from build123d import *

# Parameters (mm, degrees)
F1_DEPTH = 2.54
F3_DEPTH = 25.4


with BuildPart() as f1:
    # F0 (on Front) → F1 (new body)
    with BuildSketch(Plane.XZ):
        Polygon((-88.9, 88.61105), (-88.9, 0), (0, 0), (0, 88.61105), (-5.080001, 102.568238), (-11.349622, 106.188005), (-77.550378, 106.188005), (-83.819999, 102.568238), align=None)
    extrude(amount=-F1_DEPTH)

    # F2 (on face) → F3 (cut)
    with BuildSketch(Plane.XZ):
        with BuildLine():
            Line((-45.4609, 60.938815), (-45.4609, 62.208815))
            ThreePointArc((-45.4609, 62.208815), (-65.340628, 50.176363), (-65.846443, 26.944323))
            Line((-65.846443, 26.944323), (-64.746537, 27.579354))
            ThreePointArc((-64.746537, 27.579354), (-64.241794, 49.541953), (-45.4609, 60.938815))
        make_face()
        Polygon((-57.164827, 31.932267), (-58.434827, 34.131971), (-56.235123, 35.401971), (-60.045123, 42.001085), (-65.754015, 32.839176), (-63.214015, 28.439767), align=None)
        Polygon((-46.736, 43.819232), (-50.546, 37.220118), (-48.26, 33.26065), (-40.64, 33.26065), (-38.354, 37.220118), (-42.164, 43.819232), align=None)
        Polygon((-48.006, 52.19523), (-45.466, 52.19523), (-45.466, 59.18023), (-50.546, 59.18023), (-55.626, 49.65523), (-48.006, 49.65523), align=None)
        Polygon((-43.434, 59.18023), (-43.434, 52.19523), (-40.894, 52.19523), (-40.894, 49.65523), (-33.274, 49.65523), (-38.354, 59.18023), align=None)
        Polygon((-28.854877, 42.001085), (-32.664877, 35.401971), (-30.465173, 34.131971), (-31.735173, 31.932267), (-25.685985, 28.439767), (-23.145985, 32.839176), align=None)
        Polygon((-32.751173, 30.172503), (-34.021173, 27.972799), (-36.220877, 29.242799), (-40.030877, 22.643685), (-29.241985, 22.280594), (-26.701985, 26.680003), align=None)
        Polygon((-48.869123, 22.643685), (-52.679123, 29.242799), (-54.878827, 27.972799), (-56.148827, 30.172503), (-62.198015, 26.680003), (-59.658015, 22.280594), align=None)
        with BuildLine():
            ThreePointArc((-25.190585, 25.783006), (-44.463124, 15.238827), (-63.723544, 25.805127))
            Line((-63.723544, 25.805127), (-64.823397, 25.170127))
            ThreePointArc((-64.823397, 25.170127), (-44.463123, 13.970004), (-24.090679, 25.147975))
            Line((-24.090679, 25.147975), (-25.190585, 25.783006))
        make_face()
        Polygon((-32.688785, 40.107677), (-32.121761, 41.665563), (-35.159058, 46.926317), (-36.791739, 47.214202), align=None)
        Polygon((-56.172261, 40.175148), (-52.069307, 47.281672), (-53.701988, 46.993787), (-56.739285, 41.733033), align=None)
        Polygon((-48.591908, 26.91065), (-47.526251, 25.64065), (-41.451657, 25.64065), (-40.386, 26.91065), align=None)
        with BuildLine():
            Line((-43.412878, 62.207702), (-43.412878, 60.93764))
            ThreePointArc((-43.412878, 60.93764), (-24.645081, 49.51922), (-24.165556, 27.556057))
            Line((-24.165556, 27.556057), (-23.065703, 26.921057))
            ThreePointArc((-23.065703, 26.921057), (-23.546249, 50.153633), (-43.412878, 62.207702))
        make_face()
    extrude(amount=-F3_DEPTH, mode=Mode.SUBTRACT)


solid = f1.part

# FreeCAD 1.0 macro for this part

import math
import FreeCAD as App
import Part
import Sketcher

V = App.Vector
Q = App.Units.Quantity


def add_polygon(sketch, points):
    """Adds a closed chain of lines whose ends are joined by coincident constraints."""
    first, n = sketch.GeometryCount, len(points)
    for a, b in zip(points, points[1:] + points[:1]):
        sketch.addGeometry(Part.LineSegment(App.Vector(*a, 0), App.Vector(*b, 0)), False)
    for i in range(n):
        sketch.addConstraint(Sketcher.Constraint("Coincident", first + i, 2, first + (i + 1) % n, 1))

doc = App.newDocument("Part")
body = doc.addObject("PartDesign::Body", "Body")

# Sketch on XZ plane
sketch1 = doc.addObject("Sketcher::SketchObject", "Sketch")
body.addObject(sketch1)
sketch1.AttachmentSupport = (doc.XZ_Plane, [""])
sketch1.MapMode = "FlatFace"
add_polygon(sketch1, [(-88.9, 88.61105), (-88.9, 0), (0, 0), (0, 88.61105), (-5.080001, 102.568238), (-11.349622, 106.188005), (-77.550378, 106.188005), (-83.819999, 102.568238)])  # lines 0-7
sketch1.addConstraint([
    Sketcher.Constraint("Vertical", 0),
    Sketcher.Constraint("Horizontal", 1),
    Sketcher.Constraint("Vertical", 2),
    Sketcher.Constraint("Horizontal", 5),
    Sketcher.Constraint("Coincident", 1, 2, -1, 1),
    Sketcher.Constraint("Horizontal", 3, 2, 6, 2),
    Sketcher.Constraint("Horizontal", 2, 2, 7, 2),
    Sketcher.Constraint("Equal", 4, 6),
    Sketcher.Constraint("Equal", 3, 7),
    Sketcher.Constraint("DistanceX", 1, 1, 1, 2, Q("3.5 in")),
    Sketcher.Constraint("Angle", 3, Q("110 deg")),
    Sketcher.Constraint("Angle", 4, Q("150.000003 deg")),
    Sketcher.Constraint("DistanceX", 3, 2, -1, 1, Q("0.2 in")),
    Sketcher.Constraint("DistanceY", 0, 2, 0, 1, 88.61105),
    Sketcher.Constraint("DistanceX", 5, 2, 5, 1, 66.200756),
])
pad1 = doc.addObject("PartDesign::Pad", "Pad")
body.addObject(pad1)
pad1.Profile = sketch1
pad1.Length = Q("0.1 in")
pad1.Reversed = True

# Sketch on XZ plane
sketch2 = doc.addObject("Sketcher::SketchObject", "Sketch001")
body.addObject(sketch2)
sketch2.AttachmentSupport = (doc.XZ_Plane, [""])
sketch2.MapMode = "FlatFace"
sketch2.addGeometry(Part.LineSegment(V(-45.4609, 60.938815, 0), V(-45.4609, 62.208815, 0)), False)  # 0
sketch2.addGeometry(Part.ArcOfCircle(Part.Circle(V(-44.45, 38.1, 0), V(0, 0, 1), 24.13), math.radians(92.401047), math.radians(207.536633)), False)  # 1
sketch2.addGeometry(Part.LineSegment(V(-65.846443, 26.944323, 0), V(-64.746537, 27.579354, 0)), False)  # 2
sketch2.addGeometry(Part.ArcOfCircle(Part.Circle(V(-44.45, 38.1, 0), V(0, 0, 1), 22.861177), math.radians(92.534392), math.radians(207.399823)), False)  # 3
add_polygon(sketch2, [(-57.164827, 31.932267), (-58.434827, 34.131971), (-56.235123, 35.401971), (-60.045123, 42.001085), (-65.754015, 32.839176), (-63.214015, 28.439767)])  # lines 4-9
add_polygon(sketch2, [(-46.736, 43.819232), (-50.546, 37.220118), (-48.26, 33.26065), (-40.64, 33.26065), (-38.354, 37.220118), (-42.164, 43.819232)])  # lines 10-15
add_polygon(sketch2, [(-48.006, 52.19523), (-45.466, 52.19523), (-45.466, 59.18023), (-50.546, 59.18023), (-55.626, 49.65523), (-48.006, 49.65523)])  # lines 16-21
add_polygon(sketch2, [(-43.434, 59.18023), (-43.434, 52.19523), (-40.894, 52.19523), (-40.894, 49.65523), (-33.274, 49.65523), (-38.354, 59.18023)])  # lines 22-27
add_polygon(sketch2, [(-28.854877, 42.001085), (-32.664877, 35.401971), (-30.465173, 34.131971), (-31.735173, 31.932267), (-25.685985, 28.439767), (-23.145985, 32.839176)])  # lines 28-33
add_polygon(sketch2, [(-32.751173, 30.172503), (-34.021173, 27.972799), (-36.220877, 29.242799), (-40.030877, 22.643685), (-29.241985, 22.280594), (-26.701985, 26.680003)])  # lines 34-39
add_polygon(sketch2, [(-48.869123, 22.643685), (-52.679123, 29.242799), (-54.878827, 27.972799), (-56.148827, 30.172503), (-62.198015, 26.680003), (-59.658015, 22.280594)])  # lines 40-45
sketch2.addGeometry(Part.ArcOfCircle(Part.Circle(V(-44.45, 38.1, 0), V(0, 0, 1), 22.861177), math.radians(-147.465607), math.radians(-32.600178)), False)  # 46
sketch2.addGeometry(Part.LineSegment(V(-63.723544, 25.805127, 0), V(-64.823397, 25.170127, 0)), False)  # 47
sketch2.addGeometry(Part.ArcOfCircle(Part.Circle(V(-44.45, 38.100001, 0), V(0, 0, 1), 24.130001), math.radians(-147.59895), math.radians(-32.463369)), False)  # 48
sketch2.addGeometry(Part.LineSegment(V(-24.090679, 25.147975, 0), V(-25.190585, 25.783006, 0)), False)  # 49
add_polygon(sketch2, [(-32.688785, 40.107677), (-32.121761, 41.665563), (-35.159058, 46.926317), (-36.791739, 47.214202)])  # lines 50-53
add_polygon(sketch2, [(-56.172261, 40.175148), (-52.069307, 47.281672), (-53.701988, 46.993787), (-56.739285, 41.733033)])  # lines 54-57
add_polygon(sketch2, [(-48.591908, 26.91065), (-47.526251, 25.64065), (-41.451657, 25.64065), (-40.386, 26.91065)])  # lines 58-61
sketch2.addGeometry(Part.LineSegment(V(-43.412878, 62.207702, 0), V(-43.412878, 60.93764, 0)), False)  # 62
sketch2.addGeometry(Part.ArcOfCircle(Part.Circle(V(-44.450001, 38.1, 0), V(0, 0, 1), 22.861177), math.radians(-27.465608), math.radians(87.399821)), False)  # 63
sketch2.addGeometry(Part.LineSegment(V(-24.165556, 27.556057, 0), V(-23.065703, 26.921057, 0)), False)  # 64
sketch2.addGeometry(Part.ArcOfCircle(Part.Circle(V(-44.450002, 38.099999, 0), V(0, 0, 1), 24.130002), math.radians(-27.598949), math.radians(87.53663)), False)  # 65
sketch2.addConstraint([
    Sketcher.Constraint("Coincident", 0, 2, 1, 1),
    Sketcher.Constraint("Coincident", 1, 2, 2, 1),
    Sketcher.Constraint("Coincident", 2, 2, 3, 2),
    Sketcher.Constraint("Coincident", 3, 1, 0, 1),
    Sketcher.Constraint("Coincident", 46, 1, 47, 1),
    Sketcher.Constraint("Coincident", 47, 2, 48, 1),
    Sketcher.Constraint("Coincident", 48, 2, 49, 1),
    Sketcher.Constraint("Coincident", 49, 2, 46, 2),
    Sketcher.Constraint("Coincident", 62, 2, 63, 2),
    Sketcher.Constraint("Coincident", 63, 1, 64, 1),
    Sketcher.Constraint("Coincident", 64, 2, 65, 1),
    Sketcher.Constraint("Coincident", 65, 2, 62, 1),
    Sketcher.Constraint("Vertical", 0),
    Sketcher.Constraint("Horizontal", 12),
    Sketcher.Constraint("Horizontal", 15),
    Sketcher.Constraint("Horizontal", 16),
    Sketcher.Constraint("Vertical", 17),
    Sketcher.Constraint("Horizontal", 18),
    Sketcher.Constraint("Horizontal", 20),
    Sketcher.Constraint("Vertical", 21),
    Sketcher.Constraint("Vertical", 22),
    Sketcher.Constraint("Horizontal", 23),
    Sketcher.Constraint("Vertical", 24),
    Sketcher.Constraint("Horizontal", 25),
    Sketcher.Constraint("Horizontal", 27),
    Sketcher.Constraint("Horizontal", 59),
    Sketcher.Constraint("Horizontal", 61),
    Sketcher.Constraint("Vertical", 62),
    Sketcher.Constraint("Coincident", 3, 3, 1, 3),
    Sketcher.Constraint("Coincident", 46, 3, 1, 3),
    Sketcher.Constraint("Coincident", 48, 3, 1, 3),
    Sketcher.Constraint("Coincident", 63, 3, 1, 3),
    Sketcher.Constraint("Coincident", 65, 3, 1, 3),
    Sketcher.Constraint("Equal", 3, 46),
    Sketcher.Constraint("Equal", 1, 48),
    Sketcher.Constraint("Equal", 46, 63),
    Sketcher.Constraint("Equal", 48, 65),
    Sketcher.Constraint("Perpendicular", 2, 4),
    Sketcher.Constraint("Perpendicular", 4, 5),
    Sketcher.Constraint("Perpendicular", 5, 6),
    Sketcher.Constraint("Parallel", 6, 8),
    Sketcher.Constraint("Perpendicular", 8, 9),
    Sketcher.Constraint("Perpendicular", 9, 11),
    Sketcher.Constraint("Parallel", 10, 13),
    Sketcher.Constraint("Parallel", 11, 14),
    Sketcher.Constraint("Parallel", 13, 28),
    Sketcher.Constraint("Perpendicular", 28, 29),
    Sketcher.Constraint("Perpendicular", 29, 30),
    Sketcher.Constraint("Perpendicular", 30, 31),
    Sketcher.Constraint("Perpendicular", 31, 32),
    Sketcher.Constraint("Parallel", 32, 34),
    Sketcher.Constraint("Perpendicular", 34, 35),
    Sketcher.Constraint("Perpendicular", 35, 36),
    Sketcher.Constraint("Parallel", 36, 38),
    Sketcher.Constraint("Perpendicular", 38, 39),
    Sketcher.Constraint("Parallel", 14, 40),
    Sketcher.Constraint("Perpendicular", 40, 41),
    Sketcher.Constraint("Perpendicular", 41, 42),
    Sketcher.Constraint("Perpendicular", 42, 43),
    Sketcher.Constraint("Perpendicular", 43, 44),
    Sketcher.Constraint("Perpendicular", 44, 47),
    Sketcher.Constraint("Parallel", 39, 49),
    Sketcher.Constraint("Perpendicular", 47, 51),
    Sketcher.Constraint("Parallel", 51, 53),
    Sketcher.Constraint("Perpendicular", 49, 54),
    Sketcher.Constraint("Parallel", 54, 56),
    Sketcher.Constraint("Perpendicular", 56, 64),
    Sketcher.Constraint("Horizontal", 10, 2, 13, 2),
    Sketcher.Constraint("Horizontal", 21, 2, 22, 2),
    Sketcher.Constraint("Horizontal", 20, 2, 24, 2),
    Sketcher.Constraint("Horizontal", 18, 2, 26, 2),
    Sketcher.Constraint("Horizontal", 5, 2, 28, 2),
    Sketcher.Constraint("Horizontal", 4, 2, 29, 2),
    Sketcher.Constraint("Horizontal", 9, 2, 30, 2),
    Sketcher.Constraint("Horizontal", 8, 2, 31, 2),
    Sketcher.Constraint("Horizontal", 7, 2, 32, 2),
    Sketcher.Constraint("Horizontal", 6, 2, 33, 2),
    Sketcher.Constraint("Horizontal", 35, 2, 40, 2),
    Sketcher.Constraint("Horizontal", 34, 2, 41, 2),
    Sketcher.Constraint("Horizontal", 39, 2, 42, 2),
    Sketcher.Constraint("Horizontal", 38, 2, 43, 2),
    Sketcher.Constraint("Horizontal", 37, 2, 44, 2),
    Sketcher.Constraint("Horizontal", 36, 2, 45, 2),
    Sketcher.Constraint("Vertical", 10, 2, 18, 2),
    Sketcher.Constraint("Vertical", 13, 2, 26, 2),
    Sketcher.Constraint("Equal", 12, 20),
    Sketcher.Constraint("Equal", 16, 23),
    Sketcher.Constraint("Equal", 20, 25),
    Sketcher.Constraint("Equal", 18, 27),
    Sketcher.Constraint("Equal", 23, 21),
    Sketcher.Constraint("Equal", 4, 5),
    Sketcher.Constraint("Equal", 6, 10),
    Sketcher.Constraint("Equal", 11, 13),
    Sketcher.Constraint("Equal", 7, 19),
    Sketcher.Constraint("Equal", 30, 34),
    Sketcher.Constraint("Equal", 34, 35),
    Sketcher.Constraint("Equal", 28, 36),
    Sketcher.Constraint("Equal", 33, 37),
    Sketcher.Constraint("Equal", 32, 38),
    Sketcher.Constraint("Equal", 50, 52),
    Sketcher.Constraint("Equal", 53, 54),
    Sketcher.Constraint("Equal", 52, 55),
    Sketcher.Constraint("Equal", 51, 56),
    Sketcher.Constraint("Equal", 55, 57),
    Sketcher.Constraint("Equal", 57, 58),
    Sketcher.Constraint("Equal", 58, 60),
    Sketcher.Constraint("Radius", 1, Q("0.95 in")),
    Sketcher.Constraint("DistanceX", 12, 1, 12, 2, Q("0.3 in")),
    Sketcher.Constraint("DistanceX", 16, 1, 16, 2, Q("0.1 in")),
    Sketcher.Constraint("DistanceX", 18, 2, 18, 1, Q("0.2 in")),
    Sketcher.Constraint("Angle", 2, Q("29.999999 deg")),
    Sketcher.Constraint("Angle", 50, Q("70.000004 deg")),
    Sketcher.Constraint("Angle", 58, Q("-49.999988 deg")),
    Sketcher.Constraint("Distance", 4, Q("0.1 in")),
    Sketcher.Constraint("Distance", 6, Q("0.3 in")),
    Sketcher.Constraint("Distance", 8, Q("0.2 in")),
    Sketcher.Constraint("DistanceX", 15, 2, 15, 1, Q("0.18 in")),
    Sketcher.Constraint("DistanceY", 0, 1, 0, 2, Q("0.05 in")),
    Sketcher.Constraint("DistanceY", -1, 1, 1, 3, Q("1.5 in")),
    Sketcher.Constraint("DistanceX", 11, 2, -1, 1, Q("1.9 in")),
    Sketcher.Constraint("DistanceY", 17, 1, 17, 2, Q("0.275 in")),
    Sketcher.Constraint("DistanceX", 1, 3, -1, 1, Q("1.75 in")),
    Sketcher.Constraint("DistanceX", 60, 2, -1, 1, Q("1.59 in")),
    Sketcher.Constraint("DistanceY", -1, 1, 1, 2, Q("1.0608001 in")),
    Sketcher.Constraint("DistanceX", 63, 1, -1, 1, Q("0.9513998 in")),
    Sketcher.Constraint("DistanceX", 0, 2, -1, 1, 45.4609),
    Sketcher.Constraint("DistanceY", -1, 1, 34, 2, 27.972799),
    Sketcher.Constraint("DistanceY", -1, 1, 65, 2, 62.207702),
    Sketcher.Constraint("Distance", 53, 8.205908),
    Sketcher.Constraint("DistanceX", 59, 1, 59, 2, 6.074594),
    Sketcher.Constraint("DistanceX", 61, 2, 61, 1, 8.205908),
    Sketcher.Constraint("DistanceY", -1, 1, 4, 2, 34.131971),
    Sketcher.Constraint("DistanceY", -1, 1, 11, 2, 33.26065),
    Sketcher.Constraint("DistanceY", -1, 1, 16, 2, 52.19523),
    Sketcher.Constraint("DistanceX", 48, 2, -1, 1, 24.090679),
    Sketcher.Constraint("DistanceX", 50, 2, -1, 1, 32.121761),
    Sketcher.Constraint("DistanceX", 57, 2, -1, 1, 56.172261),
    Sketcher.Constraint("DistanceY", -1, 1, 58, 2, 25.64065),
    Sketcher.Constraint("DistanceX", 4, 2, -1, 1, 58.434827),
    Sketcher.Constraint("DistanceX", 28, 2, -1, 1, 32.664877),
    Sketcher.Constraint("DistanceX", 34, 2, -1, 1, 34.021173),
    Sketcher.Constraint("DistanceX", 40, 2, -1, 1, 52.679123),
    Sketcher.Constraint("DistanceX", 46, 1, -1, 1, 63.723544),
    Sketcher.Constraint("DistanceY", -1, 1, 50, 2, 41.665563),
    Sketcher.Constraint("DistanceY", -1, 1, 54, 2, 47.281672),
])
pocket1 = doc.addObject("PartDesign::Pocket", "Pocket")
body.addObject(pocket1)
pocket1.Profile = sketch2
pocket1.Length = Q("1 in")

doc.recompute()
